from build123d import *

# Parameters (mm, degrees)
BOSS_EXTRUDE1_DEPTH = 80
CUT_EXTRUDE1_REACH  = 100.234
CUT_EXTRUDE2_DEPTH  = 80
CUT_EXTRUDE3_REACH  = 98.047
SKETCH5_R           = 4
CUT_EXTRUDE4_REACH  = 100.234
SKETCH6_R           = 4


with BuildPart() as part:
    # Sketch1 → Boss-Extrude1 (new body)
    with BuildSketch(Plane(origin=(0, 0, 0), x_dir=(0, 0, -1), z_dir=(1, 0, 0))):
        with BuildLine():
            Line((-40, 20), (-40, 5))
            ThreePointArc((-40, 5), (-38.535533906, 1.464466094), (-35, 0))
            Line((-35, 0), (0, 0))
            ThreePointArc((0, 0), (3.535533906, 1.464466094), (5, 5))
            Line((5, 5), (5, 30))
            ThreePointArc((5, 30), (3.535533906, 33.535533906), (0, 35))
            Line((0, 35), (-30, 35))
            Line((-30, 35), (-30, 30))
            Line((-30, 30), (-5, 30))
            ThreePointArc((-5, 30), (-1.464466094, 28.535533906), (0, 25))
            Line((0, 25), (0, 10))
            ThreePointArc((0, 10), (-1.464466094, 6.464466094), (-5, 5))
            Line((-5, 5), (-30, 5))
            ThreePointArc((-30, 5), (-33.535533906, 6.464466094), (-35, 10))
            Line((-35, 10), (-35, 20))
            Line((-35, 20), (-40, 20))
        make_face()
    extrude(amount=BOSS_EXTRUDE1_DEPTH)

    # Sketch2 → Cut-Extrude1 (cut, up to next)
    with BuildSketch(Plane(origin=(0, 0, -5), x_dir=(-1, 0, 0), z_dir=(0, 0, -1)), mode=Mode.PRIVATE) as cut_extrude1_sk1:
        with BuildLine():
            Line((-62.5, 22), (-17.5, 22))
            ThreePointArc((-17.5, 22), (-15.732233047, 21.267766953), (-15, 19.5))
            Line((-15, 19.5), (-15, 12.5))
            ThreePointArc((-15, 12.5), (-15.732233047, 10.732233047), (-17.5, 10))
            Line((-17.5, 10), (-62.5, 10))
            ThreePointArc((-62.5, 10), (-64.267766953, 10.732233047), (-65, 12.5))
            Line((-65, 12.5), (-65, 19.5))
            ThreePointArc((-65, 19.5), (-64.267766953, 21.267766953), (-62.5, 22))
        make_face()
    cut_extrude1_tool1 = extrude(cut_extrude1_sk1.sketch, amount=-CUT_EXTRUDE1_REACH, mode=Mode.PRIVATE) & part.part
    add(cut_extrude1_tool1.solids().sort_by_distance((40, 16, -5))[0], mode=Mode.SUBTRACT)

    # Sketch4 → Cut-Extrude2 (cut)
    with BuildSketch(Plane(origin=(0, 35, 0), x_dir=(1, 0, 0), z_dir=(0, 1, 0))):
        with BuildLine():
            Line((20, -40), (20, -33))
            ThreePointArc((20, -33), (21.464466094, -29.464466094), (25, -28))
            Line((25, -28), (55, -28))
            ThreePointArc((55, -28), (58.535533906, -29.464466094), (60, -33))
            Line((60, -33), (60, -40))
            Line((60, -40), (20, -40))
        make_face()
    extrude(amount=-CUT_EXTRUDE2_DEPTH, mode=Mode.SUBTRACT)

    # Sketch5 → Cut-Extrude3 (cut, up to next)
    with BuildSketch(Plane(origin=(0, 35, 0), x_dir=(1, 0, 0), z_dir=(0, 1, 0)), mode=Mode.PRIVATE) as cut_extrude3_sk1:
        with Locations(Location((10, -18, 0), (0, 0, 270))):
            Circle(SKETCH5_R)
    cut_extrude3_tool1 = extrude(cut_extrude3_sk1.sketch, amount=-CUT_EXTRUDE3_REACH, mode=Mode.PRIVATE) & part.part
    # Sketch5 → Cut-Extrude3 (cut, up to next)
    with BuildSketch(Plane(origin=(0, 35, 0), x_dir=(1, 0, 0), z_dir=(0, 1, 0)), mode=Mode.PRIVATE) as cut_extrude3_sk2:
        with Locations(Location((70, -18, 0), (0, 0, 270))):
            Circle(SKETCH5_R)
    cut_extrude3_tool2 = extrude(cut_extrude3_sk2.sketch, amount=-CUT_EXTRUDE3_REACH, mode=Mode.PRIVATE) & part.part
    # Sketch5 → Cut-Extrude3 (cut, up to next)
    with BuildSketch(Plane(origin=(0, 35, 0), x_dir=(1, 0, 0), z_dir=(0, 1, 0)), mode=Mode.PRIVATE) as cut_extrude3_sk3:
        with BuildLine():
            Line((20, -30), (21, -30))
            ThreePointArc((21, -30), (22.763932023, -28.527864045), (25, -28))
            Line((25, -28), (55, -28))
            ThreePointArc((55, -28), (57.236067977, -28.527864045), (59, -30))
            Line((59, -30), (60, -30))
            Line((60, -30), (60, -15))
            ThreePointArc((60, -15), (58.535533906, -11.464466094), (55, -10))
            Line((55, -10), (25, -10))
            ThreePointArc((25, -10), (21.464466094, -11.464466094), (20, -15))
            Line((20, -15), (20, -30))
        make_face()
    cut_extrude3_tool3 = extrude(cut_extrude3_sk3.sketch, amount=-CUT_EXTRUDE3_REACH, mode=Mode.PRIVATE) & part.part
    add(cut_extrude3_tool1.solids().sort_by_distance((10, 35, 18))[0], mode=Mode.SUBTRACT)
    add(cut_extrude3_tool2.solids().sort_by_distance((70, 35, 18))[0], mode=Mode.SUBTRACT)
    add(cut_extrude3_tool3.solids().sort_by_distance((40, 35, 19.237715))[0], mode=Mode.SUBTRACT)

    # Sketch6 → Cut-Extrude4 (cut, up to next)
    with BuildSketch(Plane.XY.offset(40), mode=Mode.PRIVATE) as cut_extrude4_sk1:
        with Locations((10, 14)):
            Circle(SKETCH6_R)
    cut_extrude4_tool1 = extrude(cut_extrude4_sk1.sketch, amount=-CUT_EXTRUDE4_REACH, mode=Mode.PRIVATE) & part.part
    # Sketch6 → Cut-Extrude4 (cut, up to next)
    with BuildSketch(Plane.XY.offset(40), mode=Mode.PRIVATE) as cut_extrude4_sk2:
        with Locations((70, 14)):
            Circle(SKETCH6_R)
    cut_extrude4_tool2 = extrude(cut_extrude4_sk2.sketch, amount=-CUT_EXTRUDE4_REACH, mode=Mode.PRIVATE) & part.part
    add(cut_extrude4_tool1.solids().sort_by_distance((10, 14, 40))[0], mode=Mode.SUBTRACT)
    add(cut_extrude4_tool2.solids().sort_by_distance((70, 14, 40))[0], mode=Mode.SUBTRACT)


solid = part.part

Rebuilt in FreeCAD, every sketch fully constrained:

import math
import FreeCAD as App
import Part
import Sketcher
from FreeCAD import Vector
Q = App.Units.Quantity

doc = App.newDocument("Part")
body = doc.addObject("PartDesign::Body", "Body")

# Sketch on YZ plane
sketch1 = doc.addObject("Sketcher::SketchObject", "Sketch")
body.addObject(sketch1)
sketch1.AttachmentSupport = (doc.YZ_Plane, [""])
sketch1.MapMode = "FlatFace"
sketch1.addGeometry(Part.LineSegment(Vector(20, 40, 0), Vector(5, 40, 0)), False)
sketch1.addGeometry(Part.ArcOfCircle(Part.Circle(Vector(5, 35, 0), Vector(0, 0, 1), 5), math.radians(90), math.radians(180)), False)
sketch1.addGeometry(Part.LineSegment(Vector(0, 35, 0), Vector(0, 0, 0)), False)
sketch1.addGeometry(Part.ArcOfCircle(Part.Circle(Vector(5, 0, 0), Vector(0, 0, 1), 5), math.radians(180), math.radians(270)), False)
sketch1.addGeometry(Part.LineSegment(Vector(5, -5, 0), Vector(30, -5, 0)), False)
sketch1.addGeometry(Part.ArcOfCircle(Part.Circle(Vector(30, 0, 0), Vector(0, 0, 1), 5), math.radians(-90), math.radians(0)), False)
sketch1.addGeometry(Part.LineSegment(Vector(35, 0, 0), Vector(35, 30, 0)), False)
sketch1.addGeometry(Part.LineSegment(Vector(35, 30, 0), Vector(30, 30, 0)), False)
sketch1.addGeometry(Part.LineSegment(Vector(30, 30, 0), Vector(30, 5, 0)), False)
sketch1.addGeometry(Part.ArcOfCircle(Part.Circle(Vector(25, 5, 0), Vector(0, 0, 1), 5), math.radians(-90), math.radians(0)), False)
sketch1.addGeometry(Part.LineSegment(Vector(25, 0, 0), Vector(10, 0, 0)), False)
sketch1.addGeometry(Part.ArcOfCircle(Part.Circle(Vector(10, 5, 0), Vector(0, 0, 1), 5), math.radians(180), math.radians(270)), False)
sketch1.addGeometry(Part.LineSegment(Vector(5, 5, 0), Vector(5, 30, 0)), False)
sketch1.addGeometry(Part.ArcOfCircle(Part.Circle(Vector(10, 30, 0), Vector(0, 0, 1), 5), math.radians(90), math.radians(180)), False)
sketch1.addGeometry(Part.LineSegment(Vector(10, 35, 0), Vector(20, 35, 0)), False)
sketch1.addGeometry(Part.LineSegment(Vector(20, 35, 0), Vector(20, 40, 0)), False)
sketch1.addConstraint(Sketcher.Constraint("Tangent", 0, 2, 1, 1))
sketch1.addConstraint(Sketcher.Constraint("Tangent", 1, 2, 2, 1))
sketch1.addConstraint(Sketcher.Constraint("Tangent", 2, 2, 3, 1))
sketch1.addConstraint(Sketcher.Constraint("Tangent", 3, 2, 4, 1))
sketch1.addConstraint(Sketcher.Constraint("Tangent", 4, 2, 5, 1))
sketch1.addConstraint(Sketcher.Constraint("Tangent", 5, 2, 6, 1))
sketch1.addConstraint(Sketcher.Constraint("Coincident", 6, 2, 7, 1))
sketch1.addConstraint(Sketcher.Constraint("Coincident", 7, 2, 8, 1))
sketch1.addConstraint(Sketcher.Constraint("Tangent", 8, 2, 9, 2))
sketch1.addConstraint(Sketcher.Constraint("Tangent", 9, 1, 10, 1))
sketch1.addConstraint(Sketcher.Constraint("Tangent", 10, 2, 11, 2))
sketch1.addConstraint(Sketcher.Constraint("Tangent", 11, 1, 12, 1))
sketch1.addConstraint(Sketcher.Constraint("Tangent", 12, 2, 13, 2))
sketch1.addConstraint(Sketcher.Constraint("Tangent", 13, 1, 14, 1))
sketch1.addConstraint(Sketcher.Constraint("Coincident", 14, 2, 15, 1))
sketch1.addConstraint(Sketcher.Constraint("Coincident", 15, 2, 0, 1))
sketch1.addConstraint(Sketcher.Constraint("Horizontal", 0))
sketch1.addConstraint(Sketcher.Constraint("Vertical", 2))
sketch1.addConstraint(Sketcher.Constraint("Horizontal", 4))
sketch1.addConstraint(Sketcher.Constraint("Vertical", 6))
sketch1.addConstraint(Sketcher.Constraint("Horizontal", 7))
sketch1.addConstraint(Sketcher.Constraint("Vertical", 8))
sketch1.addConstraint(Sketcher.Constraint("Horizontal", 10))
sketch1.addConstraint(Sketcher.Constraint("Vertical", 12))
sketch1.addConstraint(Sketcher.Constraint("Horizontal", 14))
sketch1.addConstraint(Sketcher.Constraint("Vertical", 15))
sketch1.addConstraint(Sketcher.Constraint("Coincident", 2, 2, -1, 1))
sketch1.addConstraint(Sketcher.Constraint("Equal", 1, 3))
sketch1.addConstraint(Sketcher.Constraint("Equal", 3, 5))
sketch1.addConstraint(Sketcher.Constraint("Equal", 5, 9))
sketch1.addConstraint(Sketcher.Constraint("Equal", 9, 11))
sketch1.addConstraint(Sketcher.Constraint("Equal", 11, 13))
sketch1.addConstraint(Sketcher.Constraint("Symmetric", 4, 2, 8, 2, -1))
sketch1.addConstraint(Sketcher.Constraint("Horizontal", 13, 3, 6, 2))
sketch1.addConstraint(Sketcher.Constraint("Horizontal", 1, 2, 13, 1))
sketch1.addConstraint(Sketcher.Constraint("Vertical", 3, 2, 11, 1))
sketch1.addConstraint(Sketcher.Constraint("Equal", 0, 10))
sketch1.addConstraint(Sketcher.Constraint("Equal", 4, 8))
sketch1.addConstraint(Sketcher.Constraint("Radius", 1, Q("5 mm")))
sketch1.addConstraint(Sketcher.Constraint("DistanceX", 0, 2, 0, 1, Q("15 mm")))
pad1 = doc.addObject("PartDesign::Pad", "Pad")
body.addObject(pad1)
pad1.Profile = sketch1
pad1.Length = 80

# Sketch on XY plane
sketch2 = doc.addObject("Sketcher::SketchObject", "Sketch001")
body.addObject(sketch2)
sketch2.AttachmentSupport = (doc.XY_Plane, [""])
sketch2.MapMode = "FlatFace"
sketch2.AttachmentOffset = App.Placement(Vector(0, 0, -5), App.Rotation())
sketch2.addGeometry(Part.LineSegment(Vector(17.5, 22, 0), Vector(62.5, 22, 0)), False)
sketch2.addGeometry(Part.ArcOfCircle(Part.Circle(Vector(62.5, 19.5, 0), Vector(0, 0, 1), 2.5), math.radians(0), math.radians(90)), False)
sketch2.addGeometry(Part.LineSegment(Vector(65, 19.5, 0), Vector(65, 12.5, 0)), False)
sketch2.addGeometry(Part.ArcOfCircle(Part.Circle(Vector(62.5, 12.5, 0), Vector(0, 0, 1), 2.5), math.radians(-90), math.radians(0)), False)
sketch2.addGeometry(Part.LineSegment(Vector(62.5, 10, 0), Vector(17.5, 10, 0)), False)
sketch2.addGeometry(Part.ArcOfCircle(Part.Circle(Vector(17.5, 12.5, 0), Vector(0, 0, 1), 2.5), math.radians(180), math.radians(270)), False)
sketch2.addGeometry(Part.LineSegment(Vector(15, 12.5, 0), Vector(15, 19.5, 0)), False)
sketch2.addGeometry(Part.ArcOfCircle(Part.Circle(Vector(17.5, 19.5, 0), Vector(0, 0, 1), 2.5), math.radians(90), math.radians(180)), False)
sketch2.addConstraint(Sketcher.Constraint("Tangent", 0, 2, 1, 2))
sketch2.addConstraint(Sketcher.Constraint("Tangent", 1, 1, 2, 1))
sketch2.addConstraint(Sketcher.Constraint("Tangent", 2, 2, 3, 2))
sketch2.addConstraint(Sketcher.Constraint("Tangent", 3, 1, 4, 1))
sketch2.addConstraint(Sketcher.Constraint("Tangent", 4, 2, 5, 2))
sketch2.addConstraint(Sketcher.Constraint("Tangent", 5, 1, 6, 1))
sketch2.addConstraint(Sketcher.Constraint("Tangent", 6, 2, 7, 2))
sketch2.addConstraint(Sketcher.Constraint("Tangent", 7, 1, 0, 1))
sketch2.addConstraint(Sketcher.Constraint("Horizontal", 0))
sketch2.addConstraint(Sketcher.Constraint("Vertical", 2))
sketch2.addConstraint(Sketcher.Constraint("Horizontal", 4))
sketch2.addConstraint(Sketcher.Constraint("Vertical", 6))
sketch2.addConstraint(Sketcher.Constraint("Equal", 1, 3))
sketch2.addConstraint(Sketcher.Constraint("Equal", 3, 5))
sketch2.addConstraint(Sketcher.Constraint("Equal", 5, 7))
sketch2.addConstraint(Sketcher.Constraint("Radius", 1, Q("2.5 mm")))
sketch2.addConstraint(Sketcher.Constraint("DistanceX", 0, 1, 0, 2, Q("45 mm")))
sketch2.addConstraint(Sketcher.Constraint("DistanceY", 2, 2, 2, 1, Q("7 mm")))
sketch2.addConstraint(Sketcher.Constraint("DistanceY", -1, 1, 0, 2, Q("22 mm")))
sketch2.addConstraint(Sketcher.Constraint("DistanceX", -1, 1, 1, 1, Q("65 mm")))
pocket1 = doc.addObject("PartDesign::Pocket", "Pocket")
body.addObject(pocket1)
pocket1.Profile = sketch2
pocket1.Type = "UpToFirst"
pocket1.Reversed = True

# Sketch on XZ plane
sketch3 = doc.addObject("Sketcher::SketchObject", "Sketch002")
body.addObject(sketch3)
sketch3.AttachmentSupport = (doc.XZ_Plane, [""])
sketch3.MapMode = "FlatFace"
sketch3.AttachmentOffset = App.Placement(Vector(0, 0, -35), App.Rotation())
sketch3.addGeometry(Part.LineSegment(Vector(20, 33, 0), Vector(20, 40, 0)), False)
sketch3.addGeometry(Part.LineSegment(Vector(20, 40, 0), Vector(60, 40, 0)), False)
sketch3.addGeometry(Part.LineSegment(Vector(60, 40, 0), Vector(60, 33, 0)), False)
sketch3.addGeometry(Part.ArcOfCircle(Part.Circle(Vector(55, 33, 0), Vector(0, 0, 1), 5), math.radians(-90), math.radians(0)), False)
sketch3.addGeometry(Part.LineSegment(Vector(55, 28, 0), Vector(25, 28, 0)), False)
sketch3.addGeometry(Part.ArcOfCircle(Part.Circle(Vector(25, 33, 0), Vector(0, 0, 1), 5), math.radians(180), math.radians(270)), False)
sketch3.addConstraint(Sketcher.Constraint("Coincident", 0, 2, 1, 1))
sketch3.addConstraint(Sketcher.Constraint("Coincident", 1, 2, 2, 1))
sketch3.addConstraint(Sketcher.Constraint("Tangent", 2, 2, 3, 2))
sketch3.addConstraint(Sketcher.Constraint("Tangent", 3, 1, 4, 1))
sketch3.addConstraint(Sketcher.Constraint("Tangent", 4, 2, 5, 2))
sketch3.addConstraint(Sketcher.Constraint("Tangent", 5, 1, 0, 1))
sketch3.addConstraint(Sketcher.Constraint("Vertical", 0))
sketch3.addConstraint(Sketcher.Constraint("Horizontal", 1))
sketch3.addConstraint(Sketcher.Constraint("Vertical", 2))
sketch3.addConstraint(Sketcher.Constraint("Horizontal", 4))
sketch3.addConstraint(Sketcher.Constraint("Equal", 3, 5))
sketch3.addConstraint(Sketcher.Constraint("Radius", 3, Q("5 mm")))
sketch3.addConstraint(Sketcher.Constraint("DistanceX", 1, 1, 1, 2, Q("40 mm")))
sketch3.addConstraint(Sketcher.Constraint("DistanceY", 0, 1, 0, 2, Q("7 mm")))
sketch3.addConstraint(Sketcher.Constraint("DistanceX", -1, 1, 3, 3, Q("55 mm")))
sketch3.addConstraint(Sketcher.Constraint("DistanceY", -1, 1, 3, 3, Q("33 mm")))
pocket2 = doc.addObject("PartDesign::Pocket", "Pocket001")
body.addObject(pocket2)
pocket2.Profile = sketch3
pocket2.Length = 80
pocket2.Reversed = True

# Sketch on XZ plane
sketch4 = doc.addObject("Sketcher::SketchObject", "Sketch003")
body.addObject(sketch4)
sketch4.AttachmentSupport = (doc.XZ_Plane, [""])
sketch4.MapMode = "FlatFace"
sketch4.AttachmentOffset = App.Placement(Vector(0, 0, -35), App.Rotation())
sketch4.addGeometry(Part.Circle(Vector(10, 18, 0), Vector(0, 0, 1), 4), False)
sketch4.addConstraint(Sketcher.Constraint("Diameter", 0, Q("8 mm")))
sketch4.addConstraint(Sketcher.Constraint("DistanceX", -1, 1, 0, 3, Q("10 mm")))
sketch4.addConstraint(Sketcher.Constraint("DistanceY", -1, 1, 0, 3, Q("18 mm")))
pocket3 = doc.addObject("PartDesign::Pocket", "Pocket002")
body.addObject(pocket3)
pocket3.Profile = sketch4
pocket3.Type = "UpToFirst"
pocket3.Reversed = True

# Sketch on XZ plane
sketch5 = doc.addObject("Sketcher::SketchObject", "Sketch004")
body.addObject(sketch5)
sketch5.AttachmentSupport = (doc.XZ_Plane, [""])
sketch5.MapMode = "FlatFace"
sketch5.AttachmentOffset = App.Placement(Vector(0, 0, -35), App.Rotation())
sketch5.addGeometry(Part.Circle(Vector(70, 18, 0), Vector(0, 0, 1), 4), False)
sketch5.addConstraint(Sketcher.Constraint("Diameter", 0, Q("8 mm")))
sketch5.addConstraint(Sketcher.Constraint("DistanceX", -1, 1, 0, 3, Q("70 mm")))
sketch5.addConstraint(Sketcher.Constraint("DistanceY", -1, 1, 0, 3, Q("18 mm")))
pocket4 = doc.addObject("PartDesign::Pocket", "Pocket003")
body.addObject(pocket4)
pocket4.Profile = sketch5
pocket4.Type = "UpToFirst"
pocket4.Reversed = True

# Sketch on XZ plane
sketch6 = doc.addObject("Sketcher::SketchObject", "Sketch005")
body.addObject(sketch6)
sketch6.AttachmentSupport = (doc.XZ_Plane, [""])
sketch6.MapMode = "FlatFace"
sketch6.AttachmentOffset = App.Placement(Vector(0, 0, -35), App.Rotation())
sketch6.addGeometry(Part.LineSegment(Vector(20, 30, 0), Vector(21, 30, 0)), False)
sketch6.addGeometry(Part.ArcOfCircle(Part.Circle(Vector(25, 33, 0), Vector(0, 0, 1), 5), math.radians(-143), math.radians(-90)), False)
sketch6.addGeometry(Part.LineSegment(Vector(25, 28, 0), Vector(55, 28, 0)), False)
sketch6.addGeometry(Part.ArcOfCircle(Part.Circle(Vector(55, 33, 0), Vector(0, 0, 1), 5), math.radians(-90), math.radians(-37)), False)
sketch6.addGeometry(Part.LineSegment(Vector(59, 30, 0), Vector(60, 30, 0)), False)
sketch6.addGeometry(Part.LineSegment(Vector(60, 30, 0), Vector(60, 15, 0)), False)
sketch6.addGeometry(Part.ArcOfCircle(Part.Circle(Vector(55, 15, 0), Vector(0, 0, 1), 5), math.radians(-90), math.radians(0)), False)
sketch6.addGeometry(Part.LineSegment(Vector(55, 10, 0), Vector(25, 10, 0)), False)
sketch6.addGeometry(Part.ArcOfCircle(Part.Circle(Vector(25, 15, 0), Vector(0, 0, 1), 5), math.radians(180), math.radians(270)), False)
sketch6.addGeometry(Part.LineSegment(Vector(20, 15, 0), Vector(20, 30, 0)), False)
sketch6.addConstraint(Sketcher.Constraint("Coincident", 0, 2, 1, 1))
sketch6.addConstraint(Sketcher.Constraint("Tangent", 1, 2, 2, 1))
sketch6.addConstraint(Sketcher.Constraint("Tangent", 2, 2, 3, 1))
sketch6.addConstraint(Sketcher.Constraint("Coincident", 3, 2, 4, 1))
sketch6.addConstraint(Sketcher.Constraint("Coincident", 4, 2, 5, 1))
sketch6.addConstraint(Sketcher.Constraint("Tangent", 5, 2, 6, 2))
sketch6.addConstraint(Sketcher.Constraint("Tangent", 6, 1, 7, 1))
sketch6.addConstraint(Sketcher.Constraint("Tangent", 7, 2, 8, 2))
sketch6.addConstraint(Sketcher.Constraint("Tangent", 8, 1, 9, 1))
sketch6.addConstraint(Sketcher.Constraint("Coincident", 9, 2, 0, 1))
sketch6.addConstraint(Sketcher.Constraint("Horizontal", 0))
sketch6.addConstraint(Sketcher.Constraint("Horizontal", 2))
sketch6.addConstraint(Sketcher.Constraint("Horizontal", 4))
sketch6.addConstraint(Sketcher.Constraint("Vertical", 5))
sketch6.addConstraint(Sketcher.Constraint("Horizontal", 7))
sketch6.addConstraint(Sketcher.Constraint("Vertical", 9))
sketch6.addConstraint(Sketcher.Constraint("Equal", 1, 3))
sketch6.addConstraint(Sketcher.Constraint("Equal", 3, 6))
sketch6.addConstraint(Sketcher.Constraint("Equal", 6, 8))
sketch6.addConstraint(Sketcher.Constraint("Horizontal", 0, 2, 3, 2))
sketch6.addConstraint(Sketcher.Constraint("Vertical", 3, 3, 6, 3))
sketch6.addConstraint(Sketcher.Constraint("Vertical", 1, 3, 8, 3))
sketch6.addConstraint(Sketcher.Constraint("Radius", 1, Q("5 mm")))
sketch6.addConstraint(Sketcher.Constraint("DistanceX", 0, 1, 0, 2, Q("1 mm")))
sketch6.addConstraint(Sketcher.Constraint("DistanceX", 2, 1, 2, 2, Q("30 mm")))
sketch6.addConstraint(Sketcher.Constraint("DistanceY", 5, 2, 5, 1, Q("15 mm")))
sketch6.addConstraint(Sketcher.Constraint("DistanceX", -1, 1, 1, 3, Q("25 mm")))
sketch6.addConstraint(Sketcher.Constraint("DistanceY", -1, 1, 1, 3, Q("33 mm")))
pocket5 = doc.addObject("PartDesign::Pocket", "Pocket004")
body.addObject(pocket5)
pocket5.Profile = sketch6
pocket5.Type = "UpToFirst"
pocket5.Reversed = True

# Sketch on XY plane
sketch7 = doc.addObject("Sketcher::SketchObject", "Sketch006")
body.addObject(sketch7)
sketch7.AttachmentSupport = (doc.XY_Plane, [""])
sketch7.MapMode = "FlatFace"
sketch7.AttachmentOffset = App.Placement(Vector(0, 0, 40), App.Rotation())
sketch7.addGeometry(Part.Circle(Vector(10, 14, 0), Vector(0, 0, 1), 4), False)
sketch7.addConstraint(Sketcher.Constraint("Diameter", 0, Q("8 mm")))
sketch7.addConstraint(Sketcher.Constraint("DistanceX", -1, 1, 0, 3, Q("10 mm")))
sketch7.addConstraint(Sketcher.Constraint("DistanceY", -1, 1, 0, 3, Q("14 mm")))
pocket6 = doc.addObject("PartDesign::Pocket", "Pocket005")
body.addObject(pocket6)
pocket6.Profile = sketch7
pocket6.Type = "UpToFirst"

# Sketch on XY plane
sketch8 = doc.addObject("Sketcher::SketchObject", "Sketch007")
body.addObject(sketch8)
sketch8.AttachmentSupport = (doc.XY_Plane, [""])
sketch8.MapMode = "FlatFace"
sketch8.AttachmentOffset = App.Placement(Vector(0, 0, 40), App.Rotation())
sketch8.addGeometry(Part.Circle(Vector(70, 14, 0), Vector(0, 0, 1), 4), False)
sketch8.addConstraint(Sketcher.Constraint("Diameter", 0, Q("8 mm")))
sketch8.addConstraint(Sketcher.Constraint("DistanceX", -1, 1, 0, 3, Q("70 mm")))
sketch8.addConstraint(Sketcher.Constraint("DistanceY", -1, 1, 0, 3, Q("14 mm")))
pocket7 = doc.addObject("PartDesign::Pocket", "Pocket006")
body.addObject(pocket7)
pocket7.Profile = sketch8
pocket7.Type = "UpToFirst"

doc.recompute()
